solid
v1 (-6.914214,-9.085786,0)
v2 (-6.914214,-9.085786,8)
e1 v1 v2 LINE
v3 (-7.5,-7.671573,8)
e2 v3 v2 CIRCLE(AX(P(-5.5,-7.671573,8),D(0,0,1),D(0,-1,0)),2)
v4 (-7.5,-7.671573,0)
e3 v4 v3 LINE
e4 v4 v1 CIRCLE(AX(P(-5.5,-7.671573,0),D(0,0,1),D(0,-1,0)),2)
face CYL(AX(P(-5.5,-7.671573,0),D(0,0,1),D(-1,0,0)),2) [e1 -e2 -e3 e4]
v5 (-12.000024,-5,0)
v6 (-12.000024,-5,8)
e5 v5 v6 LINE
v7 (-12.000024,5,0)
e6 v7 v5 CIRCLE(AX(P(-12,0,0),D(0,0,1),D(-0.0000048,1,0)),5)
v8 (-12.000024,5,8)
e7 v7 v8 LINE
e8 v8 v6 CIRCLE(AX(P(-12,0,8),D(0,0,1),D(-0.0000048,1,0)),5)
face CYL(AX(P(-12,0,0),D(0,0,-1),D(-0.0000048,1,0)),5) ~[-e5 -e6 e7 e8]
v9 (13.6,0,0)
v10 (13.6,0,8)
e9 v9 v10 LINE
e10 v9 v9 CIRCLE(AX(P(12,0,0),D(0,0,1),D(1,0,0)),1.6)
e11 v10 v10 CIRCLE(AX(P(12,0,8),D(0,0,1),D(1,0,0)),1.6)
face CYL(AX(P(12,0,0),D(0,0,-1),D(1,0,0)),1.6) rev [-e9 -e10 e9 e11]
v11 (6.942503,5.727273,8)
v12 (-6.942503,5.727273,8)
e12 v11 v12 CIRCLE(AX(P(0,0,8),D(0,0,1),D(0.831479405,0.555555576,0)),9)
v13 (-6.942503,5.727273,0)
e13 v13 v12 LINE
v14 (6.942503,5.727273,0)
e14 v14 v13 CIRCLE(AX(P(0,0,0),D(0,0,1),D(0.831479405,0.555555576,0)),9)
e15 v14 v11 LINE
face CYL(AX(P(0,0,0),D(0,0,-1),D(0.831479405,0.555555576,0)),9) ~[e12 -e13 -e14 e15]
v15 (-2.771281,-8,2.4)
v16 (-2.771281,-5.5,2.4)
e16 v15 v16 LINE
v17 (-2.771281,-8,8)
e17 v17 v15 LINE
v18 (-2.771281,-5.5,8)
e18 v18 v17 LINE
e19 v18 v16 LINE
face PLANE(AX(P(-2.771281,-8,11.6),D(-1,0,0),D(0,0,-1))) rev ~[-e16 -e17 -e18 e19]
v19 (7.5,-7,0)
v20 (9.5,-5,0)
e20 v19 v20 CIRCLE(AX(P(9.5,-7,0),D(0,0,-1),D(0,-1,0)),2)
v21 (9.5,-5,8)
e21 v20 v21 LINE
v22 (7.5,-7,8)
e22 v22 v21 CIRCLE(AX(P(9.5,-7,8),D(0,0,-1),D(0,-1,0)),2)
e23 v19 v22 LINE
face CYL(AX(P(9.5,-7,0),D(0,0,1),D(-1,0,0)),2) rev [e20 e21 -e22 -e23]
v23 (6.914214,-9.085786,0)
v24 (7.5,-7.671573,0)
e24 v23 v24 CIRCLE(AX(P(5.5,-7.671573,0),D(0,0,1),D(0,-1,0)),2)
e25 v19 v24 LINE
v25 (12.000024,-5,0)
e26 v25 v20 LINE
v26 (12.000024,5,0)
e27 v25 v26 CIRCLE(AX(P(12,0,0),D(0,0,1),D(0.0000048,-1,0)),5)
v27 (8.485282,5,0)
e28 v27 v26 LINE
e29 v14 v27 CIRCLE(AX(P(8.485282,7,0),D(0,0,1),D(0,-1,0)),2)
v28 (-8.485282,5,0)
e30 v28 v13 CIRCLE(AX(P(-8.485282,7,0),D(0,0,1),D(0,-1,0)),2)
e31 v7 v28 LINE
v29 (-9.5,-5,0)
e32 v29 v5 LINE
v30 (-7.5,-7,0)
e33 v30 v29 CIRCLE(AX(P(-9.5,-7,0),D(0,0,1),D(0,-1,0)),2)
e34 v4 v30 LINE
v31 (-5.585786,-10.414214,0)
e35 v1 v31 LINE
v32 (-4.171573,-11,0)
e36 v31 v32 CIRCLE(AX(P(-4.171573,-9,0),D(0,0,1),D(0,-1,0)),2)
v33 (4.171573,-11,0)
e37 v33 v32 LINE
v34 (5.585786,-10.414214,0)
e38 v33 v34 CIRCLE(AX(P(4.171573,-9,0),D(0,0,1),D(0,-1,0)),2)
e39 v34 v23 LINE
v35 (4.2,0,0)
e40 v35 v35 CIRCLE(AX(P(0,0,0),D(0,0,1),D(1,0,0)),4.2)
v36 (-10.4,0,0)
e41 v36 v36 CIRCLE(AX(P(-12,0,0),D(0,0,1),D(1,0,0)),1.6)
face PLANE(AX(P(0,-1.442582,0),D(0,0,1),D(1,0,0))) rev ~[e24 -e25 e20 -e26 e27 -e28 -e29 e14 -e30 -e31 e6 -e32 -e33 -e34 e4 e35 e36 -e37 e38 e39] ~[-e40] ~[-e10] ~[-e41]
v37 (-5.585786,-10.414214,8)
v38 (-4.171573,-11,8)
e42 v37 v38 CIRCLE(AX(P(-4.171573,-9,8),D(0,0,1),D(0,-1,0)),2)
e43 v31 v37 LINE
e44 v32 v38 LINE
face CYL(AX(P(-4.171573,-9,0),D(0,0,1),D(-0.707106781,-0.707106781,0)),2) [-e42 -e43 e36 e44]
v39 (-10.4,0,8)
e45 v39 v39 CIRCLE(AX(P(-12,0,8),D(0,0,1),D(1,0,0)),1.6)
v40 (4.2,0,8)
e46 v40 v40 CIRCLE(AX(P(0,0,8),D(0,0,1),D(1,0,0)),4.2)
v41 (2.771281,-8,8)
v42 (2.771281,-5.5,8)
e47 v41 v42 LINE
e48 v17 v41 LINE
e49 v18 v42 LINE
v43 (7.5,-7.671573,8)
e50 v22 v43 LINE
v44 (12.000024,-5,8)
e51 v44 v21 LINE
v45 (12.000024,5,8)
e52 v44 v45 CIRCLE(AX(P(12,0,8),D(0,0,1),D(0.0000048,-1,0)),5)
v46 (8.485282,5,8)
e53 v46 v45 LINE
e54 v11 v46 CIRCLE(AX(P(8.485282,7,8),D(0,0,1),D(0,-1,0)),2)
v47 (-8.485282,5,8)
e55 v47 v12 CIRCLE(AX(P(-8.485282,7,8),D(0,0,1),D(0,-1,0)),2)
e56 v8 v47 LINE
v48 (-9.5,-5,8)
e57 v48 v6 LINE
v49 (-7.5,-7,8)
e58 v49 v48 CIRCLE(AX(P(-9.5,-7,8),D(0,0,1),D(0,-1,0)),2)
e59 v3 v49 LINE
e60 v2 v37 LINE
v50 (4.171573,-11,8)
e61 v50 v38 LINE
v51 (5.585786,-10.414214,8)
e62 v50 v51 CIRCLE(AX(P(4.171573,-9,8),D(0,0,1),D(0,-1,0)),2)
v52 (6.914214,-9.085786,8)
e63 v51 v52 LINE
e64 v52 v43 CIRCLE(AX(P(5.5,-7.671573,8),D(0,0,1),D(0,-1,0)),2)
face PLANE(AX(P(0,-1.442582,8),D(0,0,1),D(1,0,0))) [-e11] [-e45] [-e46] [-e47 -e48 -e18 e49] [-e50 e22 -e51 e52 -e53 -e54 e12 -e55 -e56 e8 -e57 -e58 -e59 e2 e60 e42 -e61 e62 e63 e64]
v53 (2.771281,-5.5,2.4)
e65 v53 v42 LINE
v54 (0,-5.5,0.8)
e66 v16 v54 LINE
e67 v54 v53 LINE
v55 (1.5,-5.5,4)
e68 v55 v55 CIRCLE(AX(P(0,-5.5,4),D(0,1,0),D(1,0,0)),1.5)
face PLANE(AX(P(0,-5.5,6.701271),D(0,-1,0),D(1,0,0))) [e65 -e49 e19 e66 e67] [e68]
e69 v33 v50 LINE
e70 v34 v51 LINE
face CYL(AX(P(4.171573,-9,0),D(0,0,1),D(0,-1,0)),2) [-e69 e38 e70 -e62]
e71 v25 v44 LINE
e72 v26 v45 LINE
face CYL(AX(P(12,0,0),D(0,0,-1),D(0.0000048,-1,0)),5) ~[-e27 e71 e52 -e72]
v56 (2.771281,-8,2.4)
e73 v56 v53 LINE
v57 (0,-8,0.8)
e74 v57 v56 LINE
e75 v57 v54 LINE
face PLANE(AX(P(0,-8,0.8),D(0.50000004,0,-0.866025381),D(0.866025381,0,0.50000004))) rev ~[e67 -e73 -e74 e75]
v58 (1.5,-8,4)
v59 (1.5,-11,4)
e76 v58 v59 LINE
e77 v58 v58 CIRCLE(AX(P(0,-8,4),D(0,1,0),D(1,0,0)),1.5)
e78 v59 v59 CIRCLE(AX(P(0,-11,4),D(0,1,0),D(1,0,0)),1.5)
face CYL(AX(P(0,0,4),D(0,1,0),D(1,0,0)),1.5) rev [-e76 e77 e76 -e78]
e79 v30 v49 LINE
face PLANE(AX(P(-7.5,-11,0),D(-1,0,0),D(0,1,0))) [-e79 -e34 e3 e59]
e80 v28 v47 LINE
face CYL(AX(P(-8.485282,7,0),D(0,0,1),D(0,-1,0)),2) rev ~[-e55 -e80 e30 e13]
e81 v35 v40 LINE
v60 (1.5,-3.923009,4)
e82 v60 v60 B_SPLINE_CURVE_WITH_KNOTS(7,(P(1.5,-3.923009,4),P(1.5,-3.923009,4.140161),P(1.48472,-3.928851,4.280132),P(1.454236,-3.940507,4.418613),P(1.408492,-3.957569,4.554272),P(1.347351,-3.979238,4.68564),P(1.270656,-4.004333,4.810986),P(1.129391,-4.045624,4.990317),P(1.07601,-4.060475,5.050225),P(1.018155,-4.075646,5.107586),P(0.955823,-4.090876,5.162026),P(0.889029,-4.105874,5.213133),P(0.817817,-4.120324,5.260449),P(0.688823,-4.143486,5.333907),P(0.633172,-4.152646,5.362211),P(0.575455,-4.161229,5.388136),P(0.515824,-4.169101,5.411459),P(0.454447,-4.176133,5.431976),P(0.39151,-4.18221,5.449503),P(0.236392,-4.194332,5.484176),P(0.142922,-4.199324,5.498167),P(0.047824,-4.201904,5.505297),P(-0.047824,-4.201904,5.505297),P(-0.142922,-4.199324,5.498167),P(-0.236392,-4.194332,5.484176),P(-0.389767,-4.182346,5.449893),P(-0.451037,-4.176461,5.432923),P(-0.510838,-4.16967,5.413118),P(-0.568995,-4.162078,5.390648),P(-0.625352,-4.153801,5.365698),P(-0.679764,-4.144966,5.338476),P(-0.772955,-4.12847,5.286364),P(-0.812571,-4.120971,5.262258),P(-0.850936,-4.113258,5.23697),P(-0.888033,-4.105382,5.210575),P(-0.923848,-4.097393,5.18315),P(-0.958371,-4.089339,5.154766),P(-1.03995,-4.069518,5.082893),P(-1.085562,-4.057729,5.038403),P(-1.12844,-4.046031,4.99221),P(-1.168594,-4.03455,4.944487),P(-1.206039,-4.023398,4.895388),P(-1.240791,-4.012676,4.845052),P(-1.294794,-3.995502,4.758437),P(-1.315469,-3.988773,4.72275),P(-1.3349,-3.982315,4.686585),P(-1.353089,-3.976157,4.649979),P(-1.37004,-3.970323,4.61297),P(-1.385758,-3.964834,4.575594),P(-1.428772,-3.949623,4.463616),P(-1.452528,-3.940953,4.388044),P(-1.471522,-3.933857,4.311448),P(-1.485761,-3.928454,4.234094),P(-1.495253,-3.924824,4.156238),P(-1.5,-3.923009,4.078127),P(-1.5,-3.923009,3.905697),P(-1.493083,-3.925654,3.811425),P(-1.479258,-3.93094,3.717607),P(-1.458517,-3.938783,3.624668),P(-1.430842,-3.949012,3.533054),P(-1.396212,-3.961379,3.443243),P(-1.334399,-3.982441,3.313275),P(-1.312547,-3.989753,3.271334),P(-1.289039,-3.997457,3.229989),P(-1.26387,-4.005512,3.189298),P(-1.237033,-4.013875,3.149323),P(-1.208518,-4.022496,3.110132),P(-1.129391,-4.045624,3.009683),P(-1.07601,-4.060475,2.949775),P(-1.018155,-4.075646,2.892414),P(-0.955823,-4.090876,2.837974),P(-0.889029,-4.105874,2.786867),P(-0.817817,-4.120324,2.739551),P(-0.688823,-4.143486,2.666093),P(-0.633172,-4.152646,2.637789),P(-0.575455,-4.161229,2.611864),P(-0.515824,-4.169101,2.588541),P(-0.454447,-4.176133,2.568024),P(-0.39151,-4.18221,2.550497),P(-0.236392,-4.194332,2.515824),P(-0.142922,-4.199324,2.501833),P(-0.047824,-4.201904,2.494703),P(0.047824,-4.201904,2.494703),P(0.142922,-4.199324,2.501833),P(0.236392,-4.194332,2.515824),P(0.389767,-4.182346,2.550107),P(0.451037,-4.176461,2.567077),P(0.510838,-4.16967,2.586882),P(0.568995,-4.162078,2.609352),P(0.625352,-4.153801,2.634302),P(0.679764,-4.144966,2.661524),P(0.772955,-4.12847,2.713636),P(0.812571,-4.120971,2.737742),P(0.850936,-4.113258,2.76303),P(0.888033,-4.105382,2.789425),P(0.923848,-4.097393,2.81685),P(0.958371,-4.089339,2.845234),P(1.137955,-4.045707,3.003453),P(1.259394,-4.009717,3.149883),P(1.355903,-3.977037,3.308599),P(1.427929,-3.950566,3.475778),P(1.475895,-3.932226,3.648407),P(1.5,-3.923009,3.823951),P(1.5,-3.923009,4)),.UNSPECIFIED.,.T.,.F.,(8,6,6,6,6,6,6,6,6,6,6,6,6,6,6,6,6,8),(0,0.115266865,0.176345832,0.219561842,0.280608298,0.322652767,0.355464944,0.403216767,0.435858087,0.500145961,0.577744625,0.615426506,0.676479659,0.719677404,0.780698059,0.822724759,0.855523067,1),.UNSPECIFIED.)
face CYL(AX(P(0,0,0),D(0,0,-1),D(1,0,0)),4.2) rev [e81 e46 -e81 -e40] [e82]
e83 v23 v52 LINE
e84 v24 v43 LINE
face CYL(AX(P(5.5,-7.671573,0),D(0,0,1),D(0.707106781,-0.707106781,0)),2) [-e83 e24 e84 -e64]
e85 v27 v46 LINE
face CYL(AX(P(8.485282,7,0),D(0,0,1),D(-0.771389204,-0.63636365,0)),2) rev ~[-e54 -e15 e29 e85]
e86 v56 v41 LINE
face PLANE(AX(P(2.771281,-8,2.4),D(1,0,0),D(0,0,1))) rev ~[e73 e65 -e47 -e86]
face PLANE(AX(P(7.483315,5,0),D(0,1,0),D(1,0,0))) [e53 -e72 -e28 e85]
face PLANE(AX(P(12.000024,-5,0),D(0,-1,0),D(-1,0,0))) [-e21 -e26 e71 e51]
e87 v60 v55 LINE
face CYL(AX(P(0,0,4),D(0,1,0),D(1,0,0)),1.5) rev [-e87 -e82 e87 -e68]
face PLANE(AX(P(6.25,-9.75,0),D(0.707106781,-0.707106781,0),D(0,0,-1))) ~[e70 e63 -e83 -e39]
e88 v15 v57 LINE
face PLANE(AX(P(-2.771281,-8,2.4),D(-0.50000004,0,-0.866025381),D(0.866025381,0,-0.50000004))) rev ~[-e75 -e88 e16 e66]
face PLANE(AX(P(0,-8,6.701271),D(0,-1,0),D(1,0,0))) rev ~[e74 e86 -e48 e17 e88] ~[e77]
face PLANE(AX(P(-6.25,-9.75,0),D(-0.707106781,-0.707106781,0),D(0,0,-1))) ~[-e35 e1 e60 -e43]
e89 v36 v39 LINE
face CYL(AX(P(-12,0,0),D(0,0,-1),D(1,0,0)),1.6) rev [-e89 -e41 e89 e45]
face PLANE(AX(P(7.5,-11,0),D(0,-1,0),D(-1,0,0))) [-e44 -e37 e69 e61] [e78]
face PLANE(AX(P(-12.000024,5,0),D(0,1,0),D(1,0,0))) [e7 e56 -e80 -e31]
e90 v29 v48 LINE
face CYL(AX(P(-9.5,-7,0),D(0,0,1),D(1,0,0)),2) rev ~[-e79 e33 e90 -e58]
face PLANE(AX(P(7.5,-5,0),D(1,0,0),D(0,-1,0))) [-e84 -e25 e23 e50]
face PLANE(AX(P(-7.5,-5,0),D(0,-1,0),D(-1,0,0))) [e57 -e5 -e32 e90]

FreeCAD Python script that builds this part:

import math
import FreeCAD as App
import Part
import Sketcher
from FreeCAD import Vector
Q = App.Units.Quantity


def edges_at(feature, points):
    """Names of the edges that pass closest to the given points."""
    edges = feature.Shape.Edges
    near = lambda p: min(range(len(edges)), key=lambda i: edges[i].distToShape(Part.Vertex(*p))[0])
    return sorted({f"Edge{near(p) + 1}" for p in points})

doc = App.newDocument("Part")
body = doc.addObject("PartDesign::Body", "Body")

sketch1 = body.newObject("Sketcher::SketchObject", "Sketch")
sketch1.AttachmentSupport = (doc.getObject("XY_Plane"), [""])
sketch1.MapMode = "FlatFace"
sketch1.addGeometry(Part.Circle(Vector(0, 0, 0), Vector(0, 0, 1), 1.5), False)
sketch1.addConstraint([
    Sketcher.Constraint("Coincident", 0, 3, -1, 1),
    Sketcher.Constraint("Diameter", 0, Q("3 mm")),
])
pad1 = body.newObject("PartDesign::Pad", "Pad")
pad1.Profile = sketch1
pad1.Length = 15
body2 = doc.addObject("PartDesign::Body", "Body001")
doc.recompute()

body.Placement = App.Placement(Vector(0, 0, 0), App.Rotation(Vector(1, 0, 0), 90))
boolean = body2.newObject("PartDesign::Boolean", "Boolean")
boolean.Type = "Fuse"
boolean.addObjects([body])
body3 = doc.addObject("PartDesign::Body", "Body002")
doc.recompute()

body2.Placement = App.Placement(Vector(0, 0, 4), App.Rotation(Vector(0, 0, 1), 0))
boolean2 = body3.newObject("PartDesign::Boolean", "Boolean001")
boolean2.Type = "Fuse"
boolean2.addObjects([body2])
body4 = doc.addObject("PartDesign::Body", "Body003")

sketch2 = body4.newObject("Sketcher::SketchObject", "Sketch001")
sketch2.AttachmentSupport = (doc.getObject("XZ_Plane003"), [""])
sketch2.MapMode = "FlatFace"
sketch2.AttachmentOffset = App.Placement(Vector(0, 0, 8), App.Rotation())
sketch2.addGeometry([
    Part.LineSegment(Vector(0, 0.8, 0), Vector(2.8, 2.4, 0)),
    Part.LineSegment(Vector(2.8, 2.4, 0), Vector(2.8, 11.6, 0)),
    Part.LineSegment(Vector(2.8, 11.6, 0), Vector(-2.8, 11.6, 0)),
    Part.LineSegment(Vector(-2.8, 11.6, 0), Vector(-2.8, 2.4, 0)),
    Part.LineSegment(Vector(-2.8, 2.4, 0), Vector(0, 0.8, 0)),
], False)
sketch2.addConstraint([
    Sketcher.Constraint("Coincident", 0, 2, 1, 1),
    Sketcher.Constraint("Coincident", 1, 2, 2, 1),
    Sketcher.Constraint("Coincident", 2, 2, 3, 1),
    Sketcher.Constraint("Coincident", 3, 2, 4, 1),
    Sketcher.Constraint("Coincident", 4, 2, 0, 1),
    Sketcher.Constraint("Vertical", 1),
    Sketcher.Constraint("Horizontal", 2),
    Sketcher.Constraint("Vertical", 3),
    Sketcher.Constraint("Symmetric", 0, 2, 3, 2, -2),
    Sketcher.Constraint("PointOnObject", 4, 2, -2),
    Sketcher.Constraint("Angle", 0, Q("30.000003 deg")),
    Sketcher.Constraint("DistanceY", 1, 1, 1, 2, Q("9.2 mm")),
    Sketcher.Constraint("Distance", 0, Q("3.2 mm")),
    Sketcher.Constraint("DistanceY", -1, 1, 0, 2, Q("2.4 mm")),
])
pad2 = body4.newObject("PartDesign::Pad", "Pad001")
pad2.Profile = sketch2
pad2.Length = 2.5
pad2.Reversed = True
doc.recompute()

boolean3 = body4.newObject("PartDesign::Boolean", "Boolean002")
boolean3.Type = "Fuse"
boolean3.addObjects([body3])
body5 = doc.addObject("PartDesign::Body", "Body004")

sketch3 = body5.newObject("Sketcher::SketchObject", "Sketch002")
sketch3.AttachmentSupport = (doc.getObject("XY_Plane004"), [""])
sketch3.MapMode = "FlatFace"
sketch3.addGeometry([
    Part.ArcOfCircle(Part.Circle(Vector(-12, 0, 0), Vector(0, 0, 1), 5), math.radians(90), math.radians(270)),
    Part.LineSegment(Vector(-12, -5, 0), Vector(-7.5, -5, 0)),
    Part.LineSegment(Vector(-7.5, -5, 0), Vector(-7.5, -11, 0)),
    Part.LineSegment(Vector(-7.5, -11, 0), Vector(7.5, -11, 0)),
    Part.LineSegment(Vector(7.5, -11, 0), Vector(7.5, -5, 0)),
    Part.LineSegment(Vector(7.5, -5, 0), Vector(12, -5, 0)),
    Part.ArcOfCircle(Part.Circle(Vector(12, 0, 0), Vector(0, 0, 1), 5), math.radians(-90), math.radians(90)),
    Part.LineSegment(Vector(12, 5, 0), Vector(7.5, 5, 0)),
    Part.ArcOfCircle(Part.Circle(Vector(0, 0, 0), Vector(0, 0, 1), 9), math.radians(34), math.radians(146)),
    Part.LineSegment(Vector(-7.5, 5, 0), Vector(-12, 5, 0)),
    Part.Circle(Vector(-12, 0, 0), Vector(0, 0, 1), 1.6),
    Part.Circle(Vector(0, 0, 0), Vector(0, 0, 1), 4.2),
    Part.Circle(Vector(12, 0, 0), Vector(0, 0, 1), 1.6),
], False)
sketch3.addConstraint([
    Sketcher.Constraint("Coincident", 0, 2, 1, 1),
    Sketcher.Constraint("Coincident", 1, 2, 2, 1),
    Sketcher.Constraint("Coincident", 2, 2, 3, 1),
    Sketcher.Constraint("Coincident", 3, 2, 4, 1),
    Sketcher.Constraint("Coincident", 4, 2, 5, 1),
    Sketcher.Constraint("Coincident", 5, 2, 6, 1),
    Sketcher.Constraint("Coincident", 6, 2, 7, 1),
    Sketcher.Constraint("Coincident", 7, 2, 8, 1),
    Sketcher.Constraint("Coincident", 8, 2, 9, 1),
    Sketcher.Constraint("Coincident", 9, 2, 0, 1),
    Sketcher.Constraint("Horizontal", 1),
    Sketcher.Constraint("Vertical", 2),
    Sketcher.Constraint("Horizontal", 3),
    Sketcher.Constraint("Vertical", 4),
    Sketcher.Constraint("Horizontal", 5),
    Sketcher.Constraint("Horizontal", 7),
    Sketcher.Constraint("Horizontal", 9),
    Sketcher.Constraint("Coincident", 8, 3, -1, 1),
    Sketcher.Constraint("Coincident", 11, 3, -1, 1),
    Sketcher.Constraint("Coincident", 10, 3, 0, 3),
    Sketcher.Constraint("Coincident", 12, 3, 6, 3),
    Sketcher.Constraint("Equal", 0, 6),
    Sketcher.Constraint("Equal", 10, 12),
    Sketcher.Constraint("Symmetric", 0, 3, 6, 3, -1, 1),
    Sketcher.Constraint("Symmetric", 1, 2, 4, 2, -2),
    Sketcher.Constraint("Vertical", 5, 2, 6, 2),
    Sketcher.Constraint("Vertical", 0, 2, 9, 2),
    Sketcher.Constraint("Equal", 1, 5),
    Sketcher.Constraint("Radius", 0, Q("5 mm")),
    Sketcher.Constraint("Radius", 8, Q("9 mm")),
    Sketcher.Constraint("Diameter", 10, Q("3.2 mm")),
    Sketcher.Constraint("Diameter", 11, Q("8.4 mm")),
    Sketcher.Constraint("DistanceX", 3, 1, 3, 2, Q("15 mm")),
    Sketcher.Constraint("DistanceY", 2, 2, 2, 1, Q("6 mm")),
    Sketcher.Constraint("DistanceX", 0, 3, -1, 1, Q("12 mm")),
    Sketcher.Constraint("DistanceX", 7, 2, 7, 1, Q("4.516709 mm")),
])
pad3 = body5.newObject("PartDesign::Pad", "Pad002")
pad3.Profile = sketch3
pad3.Length = 8
doc.recompute()

chamfer = body5.newObject("PartDesign::Chamfer", "Chamfer")
chamfer.Base = (pad3, edges_at(pad3, [(-7.5, -11, 4), (7.5, -11, 4)]))
chamfer.Size = 2.5
doc.recompute()

fillet = body5.newObject("PartDesign::Fillet", "Fillet")
fillet.Base = (chamfer, edges_at(chamfer, [
    (-7.5, -8.5, 4),
    (-7.5, -5, 4),
    (-5, -11, 4),
    (5, -11, 4),
    (7.5, -8.5, 4),
    (-7.483, 5, 4),
    (7.5, -5, 4),
    (7.483, 5, 4),
]))
fillet.Radius = 2
doc.recompute()

boolean4 = body5.newObject("PartDesign::Boolean", "Boolean003")
boolean4.Type = "Cut"
boolean4.addObjects([body4])

doc.recompute()
